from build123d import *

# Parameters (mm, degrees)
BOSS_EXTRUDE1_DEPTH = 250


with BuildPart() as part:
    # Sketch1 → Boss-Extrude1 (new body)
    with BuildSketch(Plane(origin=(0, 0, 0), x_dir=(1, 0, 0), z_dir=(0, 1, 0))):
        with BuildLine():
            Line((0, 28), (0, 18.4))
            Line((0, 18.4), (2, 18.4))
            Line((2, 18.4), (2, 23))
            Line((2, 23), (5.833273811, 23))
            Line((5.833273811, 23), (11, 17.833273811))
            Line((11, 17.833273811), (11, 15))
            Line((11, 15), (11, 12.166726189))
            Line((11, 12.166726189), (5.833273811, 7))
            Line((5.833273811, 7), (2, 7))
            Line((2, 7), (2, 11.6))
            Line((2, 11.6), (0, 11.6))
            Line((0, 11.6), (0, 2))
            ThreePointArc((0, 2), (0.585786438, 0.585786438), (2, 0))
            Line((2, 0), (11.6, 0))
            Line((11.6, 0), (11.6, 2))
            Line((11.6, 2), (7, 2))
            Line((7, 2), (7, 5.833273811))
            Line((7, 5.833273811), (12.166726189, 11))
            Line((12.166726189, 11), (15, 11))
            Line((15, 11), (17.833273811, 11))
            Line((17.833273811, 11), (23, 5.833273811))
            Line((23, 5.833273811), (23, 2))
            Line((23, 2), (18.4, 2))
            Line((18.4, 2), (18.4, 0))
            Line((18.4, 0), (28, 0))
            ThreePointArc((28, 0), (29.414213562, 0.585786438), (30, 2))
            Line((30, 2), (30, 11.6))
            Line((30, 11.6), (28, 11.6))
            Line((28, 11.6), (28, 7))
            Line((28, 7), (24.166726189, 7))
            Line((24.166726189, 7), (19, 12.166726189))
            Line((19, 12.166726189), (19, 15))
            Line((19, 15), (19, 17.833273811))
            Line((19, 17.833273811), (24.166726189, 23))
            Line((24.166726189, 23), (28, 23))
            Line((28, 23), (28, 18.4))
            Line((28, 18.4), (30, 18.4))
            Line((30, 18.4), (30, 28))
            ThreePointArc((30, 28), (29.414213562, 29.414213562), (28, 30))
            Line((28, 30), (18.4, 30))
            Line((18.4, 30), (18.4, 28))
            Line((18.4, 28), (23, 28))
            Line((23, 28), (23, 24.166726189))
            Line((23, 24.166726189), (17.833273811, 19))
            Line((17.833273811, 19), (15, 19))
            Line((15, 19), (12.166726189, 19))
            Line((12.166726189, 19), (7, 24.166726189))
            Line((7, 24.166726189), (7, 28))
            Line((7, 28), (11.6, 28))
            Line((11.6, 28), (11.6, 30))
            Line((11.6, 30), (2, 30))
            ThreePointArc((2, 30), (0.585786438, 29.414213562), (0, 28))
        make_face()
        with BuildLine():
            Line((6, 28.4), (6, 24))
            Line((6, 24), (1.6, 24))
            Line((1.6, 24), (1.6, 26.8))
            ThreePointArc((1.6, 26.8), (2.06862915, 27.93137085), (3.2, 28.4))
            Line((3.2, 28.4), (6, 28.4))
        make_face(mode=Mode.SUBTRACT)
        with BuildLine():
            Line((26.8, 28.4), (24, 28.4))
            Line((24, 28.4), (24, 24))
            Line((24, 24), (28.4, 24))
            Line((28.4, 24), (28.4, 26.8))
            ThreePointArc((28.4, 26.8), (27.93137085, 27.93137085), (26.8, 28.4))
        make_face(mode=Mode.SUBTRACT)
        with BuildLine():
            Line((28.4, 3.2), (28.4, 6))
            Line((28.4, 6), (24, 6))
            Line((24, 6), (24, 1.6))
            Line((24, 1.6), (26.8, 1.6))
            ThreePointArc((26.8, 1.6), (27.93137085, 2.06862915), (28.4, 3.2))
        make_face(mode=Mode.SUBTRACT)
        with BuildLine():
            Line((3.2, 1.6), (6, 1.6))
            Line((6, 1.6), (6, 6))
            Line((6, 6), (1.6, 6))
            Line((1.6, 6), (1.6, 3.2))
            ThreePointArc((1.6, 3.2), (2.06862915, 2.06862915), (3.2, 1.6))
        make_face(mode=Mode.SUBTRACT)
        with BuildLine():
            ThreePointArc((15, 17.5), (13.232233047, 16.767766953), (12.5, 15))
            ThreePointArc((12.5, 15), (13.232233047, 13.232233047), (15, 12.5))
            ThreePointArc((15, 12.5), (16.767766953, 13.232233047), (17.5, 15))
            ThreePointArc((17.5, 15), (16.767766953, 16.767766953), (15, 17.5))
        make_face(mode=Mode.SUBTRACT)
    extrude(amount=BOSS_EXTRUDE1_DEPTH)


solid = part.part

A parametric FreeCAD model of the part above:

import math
import FreeCAD as App
import Part
import Sketcher

doc = App.newDocument("Part")
body = doc.addObject("PartDesign::Body", "Body")

# Sketch on XZ plane
sketch1 = body.newObject("Sketcher::SketchObject", "Sketch")
sketch1.AttachmentSupport = (doc.getObject("XZ_Plane"), [""])
sketch1.MapMode = "FlatFace"
sketch1.addGeometry([
    Part.LineSegment(App.Vector(0, -28, 0), App.Vector(0, -18.4, 0)),  # 0
    Part.LineSegment(App.Vector(0, -18.4, 0), App.Vector(2, -18.4, 0)),  # 1
    Part.LineSegment(App.Vector(2, -18.4, 0), App.Vector(2, -23, 0)),  # 2
    Part.LineSegment(App.Vector(2, -23, 0), App.Vector(5.8, -23, 0)),  # 3
    Part.LineSegment(App.Vector(5.8, -23, 0), App.Vector(11, -17.8, 0)),  # 4
    Part.LineSegment(App.Vector(11, -17.8, 0), App.Vector(11, -12.2, 0)),  # 5
    Part.LineSegment(App.Vector(11, -12.2, 0), App.Vector(5.8, -7, 0)),  # 6
    Part.LineSegment(App.Vector(5.8, -7, 0), App.Vector(2, -7, 0)),  # 7
    Part.LineSegment(App.Vector(2, -7, 0), App.Vector(2, -11.6, 0)),  # 8
    Part.LineSegment(App.Vector(2, -11.6, 0), App.Vector(0, -11.6, 0)),  # 9
    Part.LineSegment(App.Vector(0, -11.6, 0), App.Vector(0, -2, 0)),  # 10
    Part.ArcOfCircle(Part.Circle(App.Vector(2, -2, 0), App.Vector(0, 0, 1), 2), math.radians(90), math.radians(180)),  # 11
    Part.LineSegment(App.Vector(2, 0, 0), App.Vector(11.6, 0, 0)),  # 12
    Part.LineSegment(App.Vector(11.6, 0, 0), App.Vector(11.6, -2, 0)),  # 13
    Part.LineSegment(App.Vector(11.6, -2, 0), App.Vector(7, -2, 0)),  # 14
    Part.LineSegment(App.Vector(7, -2, 0), App.Vector(7, -5.8, 0)),  # 15
    Part.LineSegment(App.Vector(7, -5.8, 0), App.Vector(12.2, -11, 0)),  # 16
    Part.LineSegment(App.Vector(12.2, -11, 0), App.Vector(17.8, -11, 0)),  # 17
    Part.LineSegment(App.Vector(17.8, -11, 0), App.Vector(23, -5.8, 0)),  # 18
    Part.LineSegment(App.Vector(23, -5.8, 0), App.Vector(23, -2, 0)),  # 19
    Part.LineSegment(App.Vector(23, -2, 0), App.Vector(18.4, -2, 0)),  # 20
    Part.LineSegment(App.Vector(18.4, -2, 0), App.Vector(18.4, 0, 0)),  # 21
    Part.LineSegment(App.Vector(18.4, 0, 0), App.Vector(28, 0, 0)),  # 22
    Part.ArcOfCircle(Part.Circle(App.Vector(28, -2, 0), App.Vector(0, 0, 1), 2), math.radians(0), math.radians(90)),  # 23
    Part.LineSegment(App.Vector(30, -2, 0), App.Vector(30, -11.6, 0)),  # 24
    Part.LineSegment(App.Vector(30, -11.6, 0), App.Vector(28, -11.6, 0)),  # 25
    Part.LineSegment(App.Vector(28, -11.6, 0), App.Vector(28, -7, 0)),  # 26
    Part.LineSegment(App.Vector(28, -7, 0), App.Vector(24.2, -7, 0)),  # 27
    Part.LineSegment(App.Vector(24.2, -7, 0), App.Vector(19, -12.2, 0)),  # 28
    Part.LineSegment(App.Vector(19, -12.2, 0), App.Vector(19, -17.8, 0)),  # 29
    Part.LineSegment(App.Vector(19, -17.8, 0), App.Vector(24.2, -23, 0)),  # 30
    Part.LineSegment(App.Vector(24.2, -23, 0), App.Vector(28, -23, 0)),  # 31
    Part.LineSegment(App.Vector(28, -23, 0), App.Vector(28, -18.4, 0)),  # 32
    Part.LineSegment(App.Vector(28, -18.4, 0), App.Vector(30, -18.4, 0)),  # 33
    Part.LineSegment(App.Vector(30, -18.4, 0), App.Vector(30, -28, 0)),  # 34
    Part.ArcOfCircle(Part.Circle(App.Vector(28, -28, 0), App.Vector(0, 0, 1), 2), math.radians(-90), math.radians(0)),  # 35
    Part.LineSegment(App.Vector(28, -30, 0), App.Vector(18.4, -30, 0)),  # 36
    Part.LineSegment(App.Vector(18.4, -30, 0), App.Vector(18.4, -28, 0)),  # 37
    Part.LineSegment(App.Vector(18.4, -28, 0), App.Vector(23, -28, 0)),  # 38
    Part.LineSegment(App.Vector(23, -28, 0), App.Vector(23, -24.2, 0)),  # 39
    Part.LineSegment(App.Vector(23, -24.2, 0), App.Vector(17.8, -19, 0)),  # 40
    Part.LineSegment(App.Vector(17.8, -19, 0), App.Vector(12.2, -19, 0)),  # 41
    Part.LineSegment(App.Vector(12.2, -19, 0), App.Vector(7, -24.2, 0)),  # 42
    Part.LineSegment(App.Vector(7, -24.2, 0), App.Vector(7, -28, 0)),  # 43
    Part.LineSegment(App.Vector(7, -28, 0), App.Vector(11.6, -28, 0)),  # 44
    Part.LineSegment(App.Vector(11.6, -28, 0), App.Vector(11.6, -30, 0)),  # 45
    Part.LineSegment(App.Vector(11.6, -30, 0), App.Vector(2, -30, 0)),  # 46
    Part.ArcOfCircle(Part.Circle(App.Vector(2, -28, 0), App.Vector(0, 0, 1), 2), math.radians(-180), math.radians(-90)),  # 47
    Part.LineSegment(App.Vector(6, -1.6, 0), App.Vector(3.2, -1.6, 0)),  # 48
    Part.ArcOfCircle(Part.Circle(App.Vector(3.2, -3.2, 0), App.Vector(0, 0, 1), 1.6), math.radians(90), math.radians(180)),  # 49
    Part.LineSegment(App.Vector(1.6, -3.2, 0), App.Vector(1.6, -6, 0)),  # 50
    Part.LineSegment(App.Vector(1.6, -6, 0), App.Vector(6, -6, 0)),  # 51
    Part.LineSegment(App.Vector(6, -6, 0), App.Vector(6, -1.6, 0)),  # 52
    Part.LineSegment(App.Vector(28.4, -6, 0), App.Vector(28.4, -3.2, 0)),  # 53
    Part.ArcOfCircle(Part.Circle(App.Vector(26.8, -3.2, 0), App.Vector(0, 0, 1), 1.6), math.radians(0), math.radians(90)),  # 54
    Part.LineSegment(App.Vector(26.8, -1.6, 0), App.Vector(24, -1.6, 0)),  # 55
    Part.LineSegment(App.Vector(24, -1.6, 0), App.Vector(24, -6, 0)),  # 56
    Part.LineSegment(App.Vector(24, -6, 0), App.Vector(28.4, -6, 0)),  # 57
    Part.LineSegment(App.Vector(3.2, -28.4, 0), App.Vector(6, -28.4, 0)),  # 58
    Part.LineSegment(App.Vector(6, -28.4, 0), App.Vector(6, -24, 0)),  # 59
    Part.LineSegment(App.Vector(6, -24, 0), App.Vector(1.6, -24, 0)),  # 60
    Part.LineSegment(App.Vector(1.6, -24, 0), App.Vector(1.6, -26.8, 0)),  # 61
    Part.ArcOfCircle(Part.Circle(App.Vector(3.2, -26.8, 0), App.Vector(0, 0, 1), 1.6), math.radians(180), math.radians(270)),  # 62
    Part.ArcOfCircle(Part.Circle(App.Vector(15, -15, 0), App.Vector(0, 0, 1), 2.5), math.radians(180), math.radians(270)),  # 63
    Part.ArcOfCircle(Part.Circle(App.Vector(15, -15, 0), App.Vector(0, 0, 1), 2.5), math.radians(-90), math.radians(0)),  # 64
    Part.ArcOfCircle(Part.Circle(App.Vector(15, -15, 0), App.Vector(0, 0, 1), 2.5), math.radians(0), math.radians(90)),  # 65
    Part.ArcOfCircle(Part.Circle(App.Vector(15, -15, 0), App.Vector(0, 0, 1), 2.5), math.radians(90), math.radians(180)),  # 66
    Part.LineSegment(App.Vector(24, -28.4, 0), App.Vector(26.8, -28.4, 0)),  # 67
    Part.ArcOfCircle(Part.Circle(App.Vector(26.8, -26.8, 0), App.Vector(0, 0, 1), 1.6), math.radians(-90), math.radians(0)),  # 68
    Part.LineSegment(App.Vector(28.4, -26.8, 0), App.Vector(28.4, -24, 0)),  # 69
    Part.LineSegment(App.Vector(28.4, -24, 0), App.Vector(24, -24, 0)),  # 70
    Part.LineSegment(App.Vector(24, -24, 0), App.Vector(24, -28.4, 0)),  # 71
], False)
sketch1.addConstraint([
    Sketcher.Constraint("Coincident", 0, 2, 1, 1),
    Sketcher.Constraint("Coincident", 1, 2, 2, 1),
    Sketcher.Constraint("Coincident", 2, 2, 3, 1),
    Sketcher.Constraint("Coincident", 3, 2, 4, 1),
    Sketcher.Constraint("Coincident", 4, 2, 5, 1),
    Sketcher.Constraint("Coincident", 5, 2, 6, 1),
    Sketcher.Constraint("Coincident", 6, 2, 7, 1),
    Sketcher.Constraint("Coincident", 7, 2, 8, 1),
    Sketcher.Constraint("Coincident", 8, 2, 9, 1),
    Sketcher.Constraint("Coincident", 9, 2, 10, 1),
    Sketcher.Constraint("Tangent", 10, 2, 11, 2),
    Sketcher.Constraint("Tangent", 11, 1, 12, 1),
    Sketcher.Constraint("Coincident", 12, 2, 13, 1),
    Sketcher.Constraint("Coincident", 13, 2, 14, 1),
    Sketcher.Constraint("Coincident", 14, 2, 15, 1),
    Sketcher.Constraint("Coincident", 15, 2, 16, 1),
    Sketcher.Constraint("Coincident", 16, 2, 17, 1),
    Sketcher.Constraint("Coincident", 17, 2, 18, 1),
    Sketcher.Constraint("Coincident", 18, 2, 19, 1),
    Sketcher.Constraint("Coincident", 19, 2, 20, 1),
    Sketcher.Constraint("Coincident", 20, 2, 21, 1),
    Sketcher.Constraint("Coincident", 21, 2, 22, 1),
    Sketcher.Constraint("Tangent", 22, 2, 23, 2),
    Sketcher.Constraint("Tangent", 23, 1, 24, 1),
    Sketcher.Constraint("Coincident", 24, 2, 25, 1),
    Sketcher.Constraint("Coincident", 25, 2, 26, 1),
    Sketcher.Constraint("Coincident", 26, 2, 27, 1),
    Sketcher.Constraint("Coincident", 27, 2, 28, 1),
    Sketcher.Constraint("Coincident", 28, 2, 29, 1),
    Sketcher.Constraint("Coincident", 29, 2, 30, 1),
    Sketcher.Constraint("Coincident", 30, 2, 31, 1),
    Sketcher.Constraint("Coincident", 31, 2, 32, 1),
    Sketcher.Constraint("Coincident", 32, 2, 33, 1),
    Sketcher.Constraint("Coincident", 33, 2, 34, 1),
    Sketcher.Constraint("Tangent", 34, 2, 35, 2),
    Sketcher.Constraint("Tangent", 35, 1, 36, 1),
    Sketcher.Constraint("Coincident", 36, 2, 37, 1),
    Sketcher.Constraint("Coincident", 37, 2, 38, 1),
    Sketcher.Constraint("Coincident", 38, 2, 39, 1),
    Sketcher.Constraint("Coincident", 39, 2, 40, 1),
    Sketcher.Constraint("Coincident", 40, 2, 41, 1),
    Sketcher.Constraint("Coincident", 41, 2, 42, 1),
    Sketcher.Constraint("Coincident", 42, 2, 43, 1),
    Sketcher.Constraint("Coincident", 43, 2, 44, 1),
    Sketcher.Constraint("Coincident", 44, 2, 45, 1),
    Sketcher.Constraint("Coincident", 45, 2, 46, 1),
    Sketcher.Constraint("Tangent", 46, 2, 47, 2),
    Sketcher.Constraint("Tangent", 47, 1, 0, 1),
    Sketcher.Constraint("Tangent", 48, 2, 49, 1),
    Sketcher.Constraint("Tangent", 49, 2, 50, 1),
    Sketcher.Constraint("Coincident", 50, 2, 51, 1),
    Sketcher.Constraint("Coincident", 51, 2, 52, 1),
    Sketcher.Constraint("Coincident", 52, 2, 48, 1),
    Sketcher.Constraint("Tangent", 53, 2, 54, 1),
    Sketcher.Constraint("Tangent", 54, 2, 55, 1),
    Sketcher.Constraint("Coincident", 55, 2, 56, 1),
    Sketcher.Constraint("Coincident", 56, 2, 57, 1),
    Sketcher.Constraint("Coincident", 57, 2, 53, 1),
    Sketcher.Constraint("Coincident", 58, 2, 59, 1),
    Sketcher.Constraint("Coincident", 59, 2, 60, 1),
    Sketcher.Constraint("Coincident", 60, 2, 61, 1),
    Sketcher.Constraint("Tangent", 61, 2, 62, 1),
    Sketcher.Constraint("Tangent", 62, 2, 58, 1),
    Sketcher.Constraint("Tangent", 63, 2, 64, 1),
    Sketcher.Constraint("Tangent", 64, 2, 65, 1),
    Sketcher.Constraint("Tangent", 65, 2, 66, 1),
    Sketcher.Constraint("Tangent", 66, 2, 63, 1),
    Sketcher.Constraint("Tangent", 67, 2, 68, 1),
    Sketcher.Constraint("Tangent", 68, 2, 69, 1),
    Sketcher.Constraint("Coincident", 69, 2, 70, 1),
    Sketcher.Constraint("Coincident", 70, 2, 71, 1),
    Sketcher.Constraint("Coincident", 71, 2, 67, 1),
    Sketcher.Constraint("Vertical", 0),
    Sketcher.Constraint("Horizontal", 1),
    Sketcher.Constraint("Vertical", 2),
    Sketcher.Constraint("Horizontal", 3),
    Sketcher.Constraint("Vertical", 5),
    Sketcher.Constraint("Horizontal", 7),
    Sketcher.Constraint("Vertical", 8),
    Sketcher.Constraint("Horizontal", 9),
    Sketcher.Constraint("Vertical", 10),
    Sketcher.Constraint("Horizontal", 12),
    Sketcher.Constraint("Vertical", 13),
    Sketcher.Constraint("Horizontal", 14),
    Sketcher.Constraint("Vertical", 15),
    Sketcher.Constraint("Horizontal", 17),
    Sketcher.Constraint("Vertical", 19),
    Sketcher.Constraint("Horizontal", 20),
    Sketcher.Constraint("Vertical", 21),
    Sketcher.Constraint("Horizontal", 22),
    Sketcher.Constraint("Vertical", 24),
    Sketcher.Constraint("Horizontal", 25),
    Sketcher.Constraint("Vertical", 26),
    Sketcher.Constraint("Horizontal", 27),
    Sketcher.Constraint("Vertical", 29),
    Sketcher.Constraint("Horizontal", 31),
    Sketcher.Constraint("Vertical", 32),
    Sketcher.Constraint("Horizontal", 33),
    Sketcher.Constraint("Vertical", 34),
    Sketcher.Constraint("Horizontal", 36),
    Sketcher.Constraint("Vertical", 37),
    Sketcher.Constraint("Horizontal", 38),
    Sketcher.Constraint("Vertical", 39),
    Sketcher.Constraint("Horizontal", 41),
    Sketcher.Constraint("Vertical", 43),
    Sketcher.Constraint("Horizontal", 44),
    Sketcher.Constraint("Vertical", 45),
    Sketcher.Constraint("Horizontal", 46),
    Sketcher.Constraint("Horizontal", 48),
    Sketcher.Constraint("Vertical", 50),
    Sketcher.Constraint("Horizontal", 51),
    Sketcher.Constraint("Vertical", 52),
    Sketcher.Constraint("Vertical", 53),
    Sketcher.Constraint("Horizontal", 55),
    Sketcher.Constraint("Vertical", 56),
    Sketcher.Constraint("Horizontal", 57),
    Sketcher.Constraint("Horizontal", 58),
    Sketcher.Constraint("Vertical", 59),
    Sketcher.Constraint("Horizontal", 60),
    Sketcher.Constraint("Vertical", 61),
    Sketcher.Constraint("Horizontal", 67),
    Sketcher.Constraint("Vertical", 69),
    Sketcher.Constraint("Horizontal", 70),
    Sketcher.Constraint("Vertical", 71),
    Sketcher.Constraint("Equal", 11, 23),
    Sketcher.Constraint("Equal", 23, 35),
    Sketcher.Constraint("Equal", 35, 47),
    Sketcher.Constraint("Equal", 49, 54),
    Sketcher.Constraint("Equal", 54, 62),
    Sketcher.Constraint("Equal", 63, 64),
    Sketcher.Constraint("Equal", 62, 68),
    Sketcher.Constraint("PointOnObject", 0, 2, -2),
    Sketcher.Constraint("PointOnObject", 9, 2, -2),
    Sketcher.Constraint("PointOnObject", 11, 1, -1),
    Sketcher.Constraint("PointOnObject", 21, 2, -1),
    Sketcher.Constraint("Perpendicular", 4, 6),
    Sketcher.Constraint("Parallel", 6, 16),
    Sketcher.Constraint("Perpendicular", 16, 18),
    Sketcher.Constraint("Parallel", 18, 28),
    Sketcher.Constraint("Perpendicular", 28, 30),
    Sketcher.Constraint("Parallel", 30, 40),
    Sketcher.Constraint("Perpendicular", 40, 42),
    Sketcher.Constraint("Horizontal", 35, 3, 47, 3),
    Sketcher.Constraint("Horizontal", 49, 3, 54, 3),
    Sketcher.Constraint("Horizontal", 62, 3, 68, 3),
    Sketcher.Constraint("Horizontal", 10, 2, 13, 2),
    Sketcher.Constraint("Horizontal", 15, 2, 18, 2),
    Sketcher.Constraint("Horizontal", 14, 2, 19, 2),
    Sketcher.Constraint("Horizontal", 9, 2, 24, 2),
    Sketcher.Constraint("Horizontal", 7, 2, 26, 2),
    Sketcher.Constraint("Horizontal", 5, 2, 28, 2),
    Sketcher.Constraint("Horizontal", 4, 2, 29, 2),
    Sketcher.Constraint("Horizontal", 3, 2, 30, 2),
    Sketcher.Constraint("Horizontal", 1, 2, 32, 2),
    Sketcher.Constraint("Horizontal", 34, 2, 37, 2),
    Sketcher.Constraint("Horizontal", 39, 2, 42, 2),
    Sketcher.Constraint("Horizontal", 38, 2, 43, 2),
    Sketcher.Constraint("Horizontal", 51, 2, 56, 2),
    Sketcher.Constraint("Horizontal", 66, 3, 64, 2),
    Sketcher.Constraint("Horizontal", 64, 2, 66, 2),
    Sketcher.Constraint("Horizontal", 60, 2, 69, 2),
    Sketcher.Constraint("Vertical", 23, 3, 35, 3),
    Sketcher.Constraint("Vertical", 49, 3, 62, 3),
    Sketcher.Constraint("Vertical", 54, 3, 68, 3),
    Sketcher.Constraint("Vertical", 47, 3, 1, 2),
    Sketcher.Constraint("Vertical", 3, 2, 6, 2),
    Sketcher.Constraint("Vertical", 2, 2, 7, 2),
    Sketcher.Constraint("Vertical", 22, 2, 25, 2),
    Sketcher.Constraint("Vertical", 27, 2, 30, 2),
    Sketcher.Constraint("Vertical", 26, 2, 31, 2),
    Sketcher.Constraint("Vertical", 21, 2, 36, 2),
    Sketcher.Constraint("Vertical", 19, 2, 38, 2),
    Sketcher.Constraint("Vertical", 17, 2, 40, 2),
    Sketcher.Constraint("Vertical", 16, 2, 41, 2),
    Sketcher.Constraint("Vertical", 13, 2, 44, 2),
    Sketcher.Constraint("Vertical", 52, 2, 58, 2),
    Sketcher.Constraint("Vertical", 66, 3, 63, 2),
    Sketcher.Constraint("Vertical", 63, 2, 65, 2),
    Sketcher.Constraint("Vertical", 56, 2, 70, 2),
    Sketcher.Constraint("Equal", 14, 20),
    Sketcher.Constraint("Equal", 12, 22),
    Sketcher.Constraint("Equal", 7, 27),
    Sketcher.Constraint("Equal", 48, 55),
    Sketcher.Constraint("Equal", 46, 0),
    Sketcher.Constraint("Equal", 44, 2),
    Sketcher.Constraint("Equal", 41, 5),
    Sketcher.Constraint("Equal", 2, 8),
    Sketcher.Constraint("Equal", 0, 10),
    Sketcher.Constraint("Equal", 31, 15),
    Sketcher.Constraint("Equal", 19, 39),
    Sketcher.Constraint("Equal", 67, 50),
    Sketcher.Constraint("Equal", 56, 59),
    Sketcher.Constraint("Equal", 6, 16),
    Sketcher.Constraint("Radius", 11, 2.0),
    Sketcher.Constraint("Radius", 49, 1.6),
    Sketcher.Constraint("Radius", 63, 2.5),
    Sketcher.Constraint("DistanceX", 12, 1, 12, 2, 9.6),
    Sketcher.Constraint("DistanceX", 14, 2, 14, 1, 4.6),
    Sketcher.Constraint("DistanceX", 48, 2, 48, 1, 2.8),
    Sketcher.Constraint("DistanceX", -1, 1, 23, 3, 28.0),
    Sketcher.Constraint("DistanceX", -1, 1, 63, 3, 15.0),
    Sketcher.Constraint("DistanceY", 63, 3, -1, 1, 15.0),
    Sketcher.Constraint("DistanceX", -1, 1, 4, 2, 11.0),
    Sketcher.Constraint("DistanceY", 50, 2, -1, 1, 6.0),
    Sketcher.Constraint("DistanceX", -1, 1, 51, 2, 6.0),
    Sketcher.Constraint("DistanceX", -1, 1, 55, 2, 24.0),
    Sketcher.Constraint("DistanceY", 59, 2, -1, 1, 24.0),
    Sketcher.Constraint("DistanceX", 3, 1, 3, 2, 3.833274),
])
pad1 = body.newObject("PartDesign::Pad", "Pad")
pad1.Profile = sketch1
pad1.Length = 250
pad1.Reversed = True

doc.recompute()
